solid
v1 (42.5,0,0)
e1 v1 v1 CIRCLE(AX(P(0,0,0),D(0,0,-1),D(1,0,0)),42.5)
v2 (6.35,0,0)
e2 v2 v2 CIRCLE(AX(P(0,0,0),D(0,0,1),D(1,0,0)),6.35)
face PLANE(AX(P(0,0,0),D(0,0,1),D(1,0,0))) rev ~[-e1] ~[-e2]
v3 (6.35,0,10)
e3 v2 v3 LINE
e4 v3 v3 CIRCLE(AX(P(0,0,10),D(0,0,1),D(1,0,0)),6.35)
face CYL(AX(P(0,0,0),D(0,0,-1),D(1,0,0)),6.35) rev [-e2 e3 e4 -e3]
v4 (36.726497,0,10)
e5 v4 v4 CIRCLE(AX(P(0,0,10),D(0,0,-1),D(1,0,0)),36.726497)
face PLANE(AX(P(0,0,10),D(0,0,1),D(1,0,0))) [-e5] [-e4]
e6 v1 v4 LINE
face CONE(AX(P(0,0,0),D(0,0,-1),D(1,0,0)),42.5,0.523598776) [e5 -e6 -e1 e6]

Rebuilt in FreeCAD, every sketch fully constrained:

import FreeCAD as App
import Part
import Sketcher
from FreeCAD import Vector
Q = App.Units.Quantity

doc = App.newDocument("Part")
params = doc.addObject("Spreadsheet::Sheet", "Params")
for row, (alias, value) in enumerate([
    ("sketch1_diameter", "85 mm"),
    ("pad1_length", "10 mm"),
    ("pad1_taper", "-30 deg"),
    ("sketch2_diameter", "12.7 mm"),
], start=1):
    params.set(f"A{row}", alias)
    params.set(f"B{row}", "=" + value)
    params.setAlias(f"B{row}", alias)

body = doc.addObject("PartDesign::Body", "Body")

sketch1 = body.newObject("Sketcher::SketchObject", "Sketch")
sketch1.AttachmentSupport = (doc.getObject("XY_Plane"), [""])
sketch1.MapMode = "FlatFace"
sketch1.addGeometry(Part.Circle(Vector(0, 0, 0), Vector(0, 0, 1), 42), False)
sketch1.addConstraint([
    Sketcher.Constraint("Coincident", 0, 3, -1, 1),
    Sketcher.Constraint("Diameter", 0, Q("85 mm")),
])
sketch1.setExpression("Constraints[1]", "Params.sketch1_diameter")
pad1 = body.newObject("PartDesign::Pad", "Pad")
pad1.Profile = sketch1
pad1.setExpression("Length", "Params.pad1_length")
pad1.setExpression("TaperAngle", "Params.pad1_taper")

sketch2 = body.newObject("Sketcher::SketchObject", "Sketch001")
sketch2.AttachmentSupport = (doc.getObject("XY_Plane"), [""])
sketch2.MapMode = "FlatFace"
sketch2.addGeometry(Part.Circle(Vector(0, 0, 0), Vector(0, 0, 1), 6), False)
sketch2.addConstraint([
    Sketcher.Constraint("Coincident", 0, 3, -1, 1),
    Sketcher.Constraint("Diameter", 0, Q("12.7 mm")),
])
sketch2.setExpression("Constraints[1]", "Params.sketch2_diameter")
pocket1 = body.newObject("PartDesign::Pocket", "Pocket")
pocket1.Profile = sketch2
pocket1.Type = "ThroughAll"
pocket1.Reversed = True

doc.recompute()
